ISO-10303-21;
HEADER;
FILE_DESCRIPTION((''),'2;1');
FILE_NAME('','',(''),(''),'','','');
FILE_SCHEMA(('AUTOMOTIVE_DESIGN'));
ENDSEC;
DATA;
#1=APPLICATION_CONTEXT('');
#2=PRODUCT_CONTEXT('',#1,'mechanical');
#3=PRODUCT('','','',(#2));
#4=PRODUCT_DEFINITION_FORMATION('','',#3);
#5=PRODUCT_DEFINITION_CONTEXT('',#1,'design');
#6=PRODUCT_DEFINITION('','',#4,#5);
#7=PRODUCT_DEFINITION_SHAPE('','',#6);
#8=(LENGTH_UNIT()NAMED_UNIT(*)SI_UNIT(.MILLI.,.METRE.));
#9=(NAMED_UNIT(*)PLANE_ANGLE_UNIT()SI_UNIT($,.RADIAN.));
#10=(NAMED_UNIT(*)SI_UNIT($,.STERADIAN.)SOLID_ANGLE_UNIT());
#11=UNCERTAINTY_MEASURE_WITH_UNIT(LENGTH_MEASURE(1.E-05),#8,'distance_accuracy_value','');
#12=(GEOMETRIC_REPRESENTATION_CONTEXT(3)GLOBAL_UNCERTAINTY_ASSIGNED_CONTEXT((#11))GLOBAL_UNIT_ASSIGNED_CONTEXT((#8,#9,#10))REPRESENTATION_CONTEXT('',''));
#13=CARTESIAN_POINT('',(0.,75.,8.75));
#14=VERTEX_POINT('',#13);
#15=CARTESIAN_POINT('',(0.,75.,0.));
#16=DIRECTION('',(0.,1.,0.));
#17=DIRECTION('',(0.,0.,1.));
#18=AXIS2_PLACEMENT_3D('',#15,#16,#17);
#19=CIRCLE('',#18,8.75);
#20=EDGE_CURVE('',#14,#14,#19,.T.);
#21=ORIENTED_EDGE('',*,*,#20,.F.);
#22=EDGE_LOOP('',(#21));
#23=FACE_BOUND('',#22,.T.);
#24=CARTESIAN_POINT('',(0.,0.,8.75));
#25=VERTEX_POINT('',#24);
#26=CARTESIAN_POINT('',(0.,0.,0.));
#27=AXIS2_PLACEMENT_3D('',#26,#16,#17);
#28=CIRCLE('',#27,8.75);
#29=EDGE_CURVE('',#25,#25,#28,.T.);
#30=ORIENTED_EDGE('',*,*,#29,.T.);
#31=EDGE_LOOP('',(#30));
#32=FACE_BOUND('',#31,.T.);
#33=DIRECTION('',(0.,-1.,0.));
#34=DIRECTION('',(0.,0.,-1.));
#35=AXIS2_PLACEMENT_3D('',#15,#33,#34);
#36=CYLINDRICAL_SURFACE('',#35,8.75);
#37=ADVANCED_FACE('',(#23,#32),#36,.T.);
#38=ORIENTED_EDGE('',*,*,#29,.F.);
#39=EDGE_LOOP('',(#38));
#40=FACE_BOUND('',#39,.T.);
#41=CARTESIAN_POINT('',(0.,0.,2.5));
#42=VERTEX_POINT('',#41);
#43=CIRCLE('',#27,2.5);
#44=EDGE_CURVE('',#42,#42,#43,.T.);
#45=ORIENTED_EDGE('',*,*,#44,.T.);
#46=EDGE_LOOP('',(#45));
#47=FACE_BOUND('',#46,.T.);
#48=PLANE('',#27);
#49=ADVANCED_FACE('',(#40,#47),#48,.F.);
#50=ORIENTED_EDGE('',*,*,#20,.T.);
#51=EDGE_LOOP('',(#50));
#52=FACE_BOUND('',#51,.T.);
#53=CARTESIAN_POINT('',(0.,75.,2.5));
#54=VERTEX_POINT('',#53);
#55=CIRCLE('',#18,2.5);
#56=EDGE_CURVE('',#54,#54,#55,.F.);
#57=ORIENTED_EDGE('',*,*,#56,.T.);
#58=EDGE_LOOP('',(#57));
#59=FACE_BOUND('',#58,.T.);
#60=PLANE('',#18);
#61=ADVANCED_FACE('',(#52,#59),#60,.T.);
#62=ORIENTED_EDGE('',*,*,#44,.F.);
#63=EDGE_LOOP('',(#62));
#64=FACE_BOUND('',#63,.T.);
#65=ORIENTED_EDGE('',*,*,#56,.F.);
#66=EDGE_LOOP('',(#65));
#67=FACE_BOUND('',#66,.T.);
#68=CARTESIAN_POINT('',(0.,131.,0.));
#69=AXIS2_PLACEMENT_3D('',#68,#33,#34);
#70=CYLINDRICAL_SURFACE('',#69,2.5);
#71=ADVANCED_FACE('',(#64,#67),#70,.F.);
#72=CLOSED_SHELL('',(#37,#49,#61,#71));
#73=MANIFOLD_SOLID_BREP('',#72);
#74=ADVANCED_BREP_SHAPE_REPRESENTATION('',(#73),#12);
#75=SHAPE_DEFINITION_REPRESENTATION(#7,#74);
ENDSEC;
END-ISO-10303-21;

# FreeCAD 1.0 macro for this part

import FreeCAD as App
import Part
import Sketcher
from FreeCAD import Vector
Q = App.Units.Quantity

doc = App.newDocument("Part")
body = doc.addObject("PartDesign::Body", "Body")

sketch1 = body.newObject("Sketcher::SketchObject", "Sketch")
sketch1.AttachmentSupport = (doc.getObject("XZ_Plane"), [""])
sketch1.MapMode = "FlatFace"
sketch1.addGeometry(Part.Circle(Vector(0, 0, 0), Vector(0, 0, 1), 9), False)
sketch1.addConstraint(Sketcher.Constraint("Coincident", 0, 3, -1, 1))
sketch1.addConstraint(Sketcher.Constraint("Diameter", 0, Q("17.5 mm")))
pad1 = body.newObject("PartDesign::Pad", "Pad")
pad1.Profile = sketch1
pad1.Length = 75
pad1.Reversed = True

sketch2 = body.newObject("Sketcher::SketchObject", "Sketch001")
sketch2.AttachmentSupport = (doc.getObject("XZ_Plane"), [""])
sketch2.MapMode = "FlatFace"
sketch2.addGeometry(Part.Circle(Vector(0, 0, 0), Vector(0, 0, 1), 2.5), False)
sketch2.addConstraint(Sketcher.Constraint("Coincident", 0, 3, -1, 1))
sketch2.addConstraint(Sketcher.Constraint("Diameter", 0, Q("5 mm")))
pocket1 = body.newObject("PartDesign::Pocket", "Pocket")
pocket1.Profile = sketch2
pocket1.Length = 131

doc.recompute()
